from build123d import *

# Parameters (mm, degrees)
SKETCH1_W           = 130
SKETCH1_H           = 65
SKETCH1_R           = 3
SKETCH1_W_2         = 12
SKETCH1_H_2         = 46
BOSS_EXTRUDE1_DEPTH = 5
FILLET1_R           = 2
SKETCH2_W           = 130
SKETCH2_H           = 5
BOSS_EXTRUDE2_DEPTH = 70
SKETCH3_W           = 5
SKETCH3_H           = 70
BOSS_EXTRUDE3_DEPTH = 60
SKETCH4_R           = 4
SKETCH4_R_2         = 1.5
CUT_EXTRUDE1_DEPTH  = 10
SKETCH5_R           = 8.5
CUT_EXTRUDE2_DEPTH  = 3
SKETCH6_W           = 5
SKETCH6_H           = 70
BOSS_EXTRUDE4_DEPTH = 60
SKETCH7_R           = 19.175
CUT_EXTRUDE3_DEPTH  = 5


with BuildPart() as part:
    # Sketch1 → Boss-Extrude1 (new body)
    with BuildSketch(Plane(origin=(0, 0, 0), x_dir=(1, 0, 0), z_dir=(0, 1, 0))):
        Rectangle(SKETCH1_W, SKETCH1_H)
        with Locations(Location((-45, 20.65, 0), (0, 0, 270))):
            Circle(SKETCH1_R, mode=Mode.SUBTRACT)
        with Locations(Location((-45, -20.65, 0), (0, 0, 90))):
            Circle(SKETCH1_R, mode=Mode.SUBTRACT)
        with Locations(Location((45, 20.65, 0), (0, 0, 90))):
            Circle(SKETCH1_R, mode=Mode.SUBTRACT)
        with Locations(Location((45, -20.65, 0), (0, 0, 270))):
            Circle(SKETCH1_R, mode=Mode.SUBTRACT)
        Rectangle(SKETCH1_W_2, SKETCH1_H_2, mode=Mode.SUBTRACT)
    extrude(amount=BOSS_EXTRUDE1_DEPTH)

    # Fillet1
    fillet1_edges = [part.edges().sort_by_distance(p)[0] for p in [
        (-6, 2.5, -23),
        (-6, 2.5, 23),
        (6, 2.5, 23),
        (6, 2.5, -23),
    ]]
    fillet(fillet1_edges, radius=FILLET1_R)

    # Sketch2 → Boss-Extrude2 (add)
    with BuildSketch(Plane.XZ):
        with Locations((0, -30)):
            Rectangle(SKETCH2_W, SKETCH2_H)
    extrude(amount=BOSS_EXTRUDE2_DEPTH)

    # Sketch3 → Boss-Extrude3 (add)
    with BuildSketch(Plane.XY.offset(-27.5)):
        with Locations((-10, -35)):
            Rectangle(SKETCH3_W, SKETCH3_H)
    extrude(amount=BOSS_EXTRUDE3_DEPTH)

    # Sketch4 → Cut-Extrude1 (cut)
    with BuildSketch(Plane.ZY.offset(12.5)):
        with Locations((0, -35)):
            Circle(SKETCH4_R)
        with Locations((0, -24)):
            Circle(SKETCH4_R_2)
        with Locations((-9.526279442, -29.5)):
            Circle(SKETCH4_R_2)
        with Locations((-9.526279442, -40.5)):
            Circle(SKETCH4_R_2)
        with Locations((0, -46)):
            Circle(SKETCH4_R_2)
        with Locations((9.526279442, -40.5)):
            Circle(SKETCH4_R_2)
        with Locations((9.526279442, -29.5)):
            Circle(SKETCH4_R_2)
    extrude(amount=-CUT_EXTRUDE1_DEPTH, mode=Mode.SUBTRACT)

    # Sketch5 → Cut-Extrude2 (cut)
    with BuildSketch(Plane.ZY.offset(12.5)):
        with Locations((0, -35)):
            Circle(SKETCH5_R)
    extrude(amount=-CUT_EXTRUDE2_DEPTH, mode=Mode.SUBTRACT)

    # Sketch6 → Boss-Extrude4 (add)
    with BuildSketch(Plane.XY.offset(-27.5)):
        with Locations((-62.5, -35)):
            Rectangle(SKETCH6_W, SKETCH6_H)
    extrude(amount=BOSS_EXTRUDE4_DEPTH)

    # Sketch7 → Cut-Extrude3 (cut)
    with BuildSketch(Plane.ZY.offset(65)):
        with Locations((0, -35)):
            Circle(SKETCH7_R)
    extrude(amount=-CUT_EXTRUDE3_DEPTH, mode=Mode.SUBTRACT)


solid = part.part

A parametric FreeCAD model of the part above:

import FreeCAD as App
import Part
import Sketcher
from FreeCAD import Vector
Q = App.Units.Quantity


def edges_at(feature, points):
    """Names of the edges that pass closest to the given points."""
    edges = feature.Shape.Edges
    near = lambda p: min(range(len(edges)), key=lambda i: edges[i].distToShape(Part.Vertex(*p))[0])
    return sorted({f"Edge{near(p) + 1}" for p in points})

doc = App.newDocument("Part")
params = doc.addObject("Spreadsheet::Sheet", "Params")
for row, (alias, value) in enumerate([
    ("sketch1_diameter", "6 mm"),
    ("sketch1_width", "130 mm"),
    ("sketch1_width2", "12 mm"),
    ("sketch1_height", "65 mm"),
    ("sketch1_height2", "46 mm"),
    ("pad1_length", "5 mm"),
    ("fillet_radius", "2 mm"),
    ("sketch2_width", "130 mm"),
    ("sketch2_height", "5 mm"),
    ("pad2_length", "70 mm"),
    ("sketch3_width", "5 mm"),
    ("sketch3_height", "70 mm"),
    ("pad3_length", "60 mm"),
    ("sketch4_diameter", "8 mm"),
    ("sketch4_diameter2", "3 mm"),
    ("pocket1_length", "10 mm"),
    ("sketch5_diameter", "17 mm"),
    ("pocket2_length", "3 mm"),
    ("sketch6_width", "5 mm"),
    ("sketch6_height", "70 mm"),
    ("pad4_length", "60 mm"),
    ("sketch7_diameter", "38.35 mm"),
    ("pocket3_length", "5 mm"),
], start=1):
    params.set(f"A{row}", alias)
    params.set(f"B{row}", "=" + value)
    params.setAlias(f"B{row}", alias)

body = doc.addObject("PartDesign::Body", "Body")

# Sketch on XZ plane
sketch1 = doc.addObject("Sketcher::SketchObject", "Sketch")
body.addObject(sketch1)
sketch1.AttachmentSupport = (doc.XZ_Plane, [""])
sketch1.MapMode = "FlatFace"
sketch1.addGeometry(Part.LineSegment(Vector(-65, -32.5, 0), Vector(-65, 32.5, 0)), False)
sketch1.addGeometry(Part.LineSegment(Vector(-65, 32.5, 0), Vector(65, 32.5, 0)), False)
sketch1.addGeometry(Part.LineSegment(Vector(65, 32.5, 0), Vector(65, -32.5, 0)), False)
sketch1.addGeometry(Part.LineSegment(Vector(65, -32.5, 0), Vector(-65, -32.5, 0)), False)
sketch1.addGeometry(Part.Circle(Vector(-45, 20.65, 0), Vector(0, 0, 1), 3), False)
sketch1.addGeometry(Part.Circle(Vector(45, 20.65, 0), Vector(0, 0, 1), 3), False)
sketch1.addGeometry(Part.LineSegment(Vector(6, 23, 0), Vector(-6, 23, 0)), False)
sketch1.addGeometry(Part.LineSegment(Vector(-6, 23, 0), Vector(-6, -23, 0)), False)
sketch1.addGeometry(Part.LineSegment(Vector(-6, -23, 0), Vector(6, -23, 0)), False)
sketch1.addGeometry(Part.LineSegment(Vector(6, -23, 0), Vector(6, 23, 0)), False)
sketch1.addGeometry(Part.Circle(Vector(-45, -20.65, 0), Vector(0, 0, 1), 3), False)
sketch1.addGeometry(Part.Circle(Vector(45, -20.65, 0), Vector(0, 0, 1), 3), False)
sketch1.addConstraint(Sketcher.Constraint("Coincident", 0, 2, 1, 1))
sketch1.addConstraint(Sketcher.Constraint("Coincident", 1, 2, 2, 1))
sketch1.addConstraint(Sketcher.Constraint("Coincident", 2, 2, 3, 1))
sketch1.addConstraint(Sketcher.Constraint("Coincident", 3, 2, 0, 1))
sketch1.addConstraint(Sketcher.Constraint("Coincident", 6, 2, 7, 1))
sketch1.addConstraint(Sketcher.Constraint("Coincident", 7, 2, 8, 1))
sketch1.addConstraint(Sketcher.Constraint("Coincident", 8, 2, 9, 1))
sketch1.addConstraint(Sketcher.Constraint("Coincident", 9, 2, 6, 1))
sketch1.addConstraint(Sketcher.Constraint("Vertical", 0))
sketch1.addConstraint(Sketcher.Constraint("Horizontal", 1))
sketch1.addConstraint(Sketcher.Constraint("Vertical", 2))
sketch1.addConstraint(Sketcher.Constraint("Horizontal", 3))
sketch1.addConstraint(Sketcher.Constraint("Horizontal", 6))
sketch1.addConstraint(Sketcher.Constraint("Vertical", 7))
sketch1.addConstraint(Sketcher.Constraint("Horizontal", 8))
sketch1.addConstraint(Sketcher.Constraint("Vertical", 9))
sketch1.addConstraint(Sketcher.Constraint("Equal", 4, 5))
sketch1.addConstraint(Sketcher.Constraint("Equal", 5, 10))
sketch1.addConstraint(Sketcher.Constraint("Equal", 10, 11))
sketch1.addConstraint(Sketcher.Constraint("Symmetric", 5, 3, 10, 3, -1, 1))
sketch1.addConstraint(Sketcher.Constraint("Symmetric", 4, 3, 11, 3, -1, 1))
sketch1.addConstraint(Sketcher.Constraint("Symmetric", 0, 2, 2, 2, -1, 1))
sketch1.addConstraint(Sketcher.Constraint("Symmetric", 6, 2, 8, 2, -1, 1))
sketch1.addConstraint(Sketcher.Constraint("Symmetric", 4, 3, 5, 3, -2))
sketch1.addConstraint(Sketcher.Constraint("Diameter", 4, Q("6 mm")))
sketch1.addConstraint(Sketcher.Constraint("DistanceX", 1, 1, 1, 2, Q("130 mm")))
sketch1.addConstraint(Sketcher.Constraint("DistanceX", 6, 2, 6, 1, Q("12 mm")))
sketch1.addConstraint(Sketcher.Constraint("DistanceY", 0, 1, 0, 2, Q("65 mm")))
sketch1.addConstraint(Sketcher.Constraint("DistanceY", 7, 2, 7, 1, Q("46 mm")))
sketch1.addConstraint(Sketcher.Constraint("DistanceX", 4, 3, -1, 1, Q("45 mm")))
sketch1.addConstraint(Sketcher.Constraint("DistanceY", 10, 3, 4, 3, Q("41.3 mm")))
sketch1.setExpression("Constraints[24]", "Params.sketch1_diameter")
sketch1.setExpression("Constraints[25]", "Params.sketch1_width")
sketch1.setExpression("Constraints[26]", "Params.sketch1_width2")
sketch1.setExpression("Constraints[27]", "Params.sketch1_height")
sketch1.setExpression("Constraints[28]", "Params.sketch1_height2")
pad1 = doc.addObject("PartDesign::Pad", "Pad")
body.addObject(pad1)
pad1.Profile = sketch1
pad1.setExpression("Length", "Params.pad1_length")
pad1.Reversed = True
doc.recompute()

fillet = doc.addObject("PartDesign::Fillet", "Fillet")
body.addObject(fillet)
fillet.Base = (pad1, edges_at(pad1, [
    (-6, 2.5, -23),
    (-6, 2.5, 23),
    (6, 2.5, 23),
    (6, 2.5, -23),
]))
fillet.setExpression("Radius", "Params.fillet_radius")

# Sketch on XZ plane
sketch2 = doc.addObject("Sketcher::SketchObject", "Sketch001")
body.addObject(sketch2)
sketch2.AttachmentSupport = (doc.XZ_Plane, [""])
sketch2.MapMode = "FlatFace"
sketch2.addGeometry(Part.LineSegment(Vector(-65, -27.5, 0), Vector(-65, -32.5, 0)), False)
sketch2.addGeometry(Part.LineSegment(Vector(-65, -32.5, 0), Vector(65, -32.5, 0)), False)
sketch2.addGeometry(Part.LineSegment(Vector(65, -32.5, 0), Vector(65, -27.5, 0)), False)
sketch2.addGeometry(Part.LineSegment(Vector(65, -27.5, 0), Vector(-65, -27.5, 0)), False)
sketch2.addConstraint(Sketcher.Constraint("Coincident", 0, 2, 1, 1))
sketch2.addConstraint(Sketcher.Constraint("Coincident", 1, 2, 2, 1))
sketch2.addConstraint(Sketcher.Constraint("Coincident", 2, 2, 3, 1))
sketch2.addConstraint(Sketcher.Constraint("Coincident", 3, 2, 0, 1))
sketch2.addConstraint(Sketcher.Constraint("Vertical", 0))
sketch2.addConstraint(Sketcher.Constraint("Horizontal", 1))
sketch2.addConstraint(Sketcher.Constraint("Vertical", 2))
sketch2.addConstraint(Sketcher.Constraint("Horizontal", 3))
sketch2.addConstraint(Sketcher.Constraint("DistanceX", 1, 1, 1, 2, Q("130 mm")))
sketch2.addConstraint(Sketcher.Constraint("DistanceY", 0, 2, 0, 1, Q("5 mm")))
sketch2.addConstraint(Sketcher.Constraint("DistanceX", 0, 2, -1, 1, Q("65 mm")))
sketch2.addConstraint(Sketcher.Constraint("DistanceY", 0, 2, -1, 1, Q("32.5 mm")))
sketch2.setExpression("Constraints[8]", "Params.sketch2_width")
sketch2.setExpression("Constraints[9]", "Params.sketch2_height")
pad2 = doc.addObject("PartDesign::Pad", "Pad001")
body.addObject(pad2)
pad2.Profile = sketch2
pad2.setExpression("Length", "Params.pad2_length")

# Sketch on XY plane
sketch3 = doc.addObject("Sketcher::SketchObject", "Sketch002")
body.addObject(sketch3)
sketch3.AttachmentSupport = (doc.XY_Plane, [""])
sketch3.MapMode = "FlatFace"
sketch3.AttachmentOffset = App.Placement(Vector(0, 0, -27.5), App.Rotation())
sketch3.addGeometry(Part.LineSegment(Vector(-12.5, 0, 0), Vector(-12.5, -70, 0)), False)
sketch3.addGeometry(Part.LineSegment(Vector(-12.5, -70, 0), Vector(-7.5, -70, 0)), False)
sketch3.addGeometry(Part.LineSegment(Vector(-7.5, -70, 0), Vector(-7.5, 0, 0)), False)
sketch3.addGeometry(Part.LineSegment(Vector(-7.5, 0, 0), Vector(-12.5, 0, 0)), False)
sketch3.addConstraint(Sketcher.Constraint("Coincident", 0, 2, 1, 1))
sketch3.addConstraint(Sketcher.Constraint("Coincident", 1, 2, 2, 1))
sketch3.addConstraint(Sketcher.Constraint("Coincident", 2, 2, 3, 1))
sketch3.addConstraint(Sketcher.Constraint("Coincident", 3, 2, 0, 1))
sketch3.addConstraint(Sketcher.Constraint("Vertical", 0))
sketch3.addConstraint(Sketcher.Constraint("Horizontal", 1))
sketch3.addConstraint(Sketcher.Constraint("Vertical", 2))
sketch3.addConstraint(Sketcher.Constraint("Horizontal", 3))
sketch3.addConstraint(Sketcher.Constraint("PointOnObject", 2, 2, -1))
sketch3.addConstraint(Sketcher.Constraint("DistanceX", 1, 1, 1, 2, Q("5 mm")))
sketch3.addConstraint(Sketcher.Constraint("DistanceY", 0, 2, 0, 1, Q("70 mm")))
sketch3.addConstraint(Sketcher.Constraint("DistanceX", 0, 2, -1, 1, Q("12.5 mm")))
sketch3.setExpression("Constraints[9]", "Params.sketch3_width")
sketch3.setExpression("Constraints[10]", "Params.sketch3_height")
pad3 = doc.addObject("PartDesign::Pad", "Pad002")
body.addObject(pad3)
pad3.Profile = sketch3
pad3.setExpression("Length", "Params.pad3_length")

# Sketch on YZ plane
sketch4 = doc.addObject("Sketcher::SketchObject", "Sketch003")
body.addObject(sketch4)
sketch4.AttachmentSupport = (doc.YZ_Plane, [""])
sketch4.MapMode = "FlatFace"
sketch4.AttachmentOffset = App.Placement(Vector(0, 0, -12.5), App.Rotation())
sketch4.addGeometry(Part.Circle(Vector(-35, 0, 0), Vector(0, 0, 1), 4), False)
sketch4.addGeometry(Part.Circle(Vector(-24, 0, 0), Vector(0, 0, 1), 1.5), False)
sketch4.addGeometry(Part.Circle(Vector(-29.5, -9.526279, 0), Vector(0, 0, 1), 1.5), False)
sketch4.addGeometry(Part.Circle(Vector(-40.5, -9.526279, 0), Vector(0, 0, 1), 1.5), False)
sketch4.addGeometry(Part.Circle(Vector(-46, 0, 0), Vector(0, 0, 1), 1.5), False)
sketch4.addGeometry(Part.Circle(Vector(-40.5, 9.526279, 0), Vector(0, 0, 1), 1.5), False)
sketch4.addGeometry(Part.Circle(Vector(-29.5, 9.526279, 0), Vector(0, 0, 1), 1.5), False)
sketch4.addConstraint(Sketcher.Constraint("Equal", 1, 2))
sketch4.addConstraint(Sketcher.Constraint("Equal", 2, 3))
sketch4.addConstraint(Sketcher.Constraint("Equal", 3, 4))
sketch4.addConstraint(Sketcher.Constraint("Equal", 4, 5))
sketch4.addConstraint(Sketcher.Constraint("Equal", 5, 6))
sketch4.addConstraint(Sketcher.Constraint("Symmetric", 3, 3, 5, 3, -1))
sketch4.addConstraint(Sketcher.Constraint("Symmetric", 2, 3, 6, 3, -1))
sketch4.addConstraint(Sketcher.Constraint("PointOnObject", 0, 3, -1))
sketch4.addConstraint(Sketcher.Constraint("PointOnObject", 1, 3, -1))
sketch4.addConstraint(Sketcher.Constraint("PointOnObject", 4, 3, -1))
sketch4.addConstraint(Sketcher.Constraint("Horizontal", 2, 3, 3, 3))
sketch4.addConstraint(Sketcher.Constraint("Diameter", 0, Q("8 mm")))
sketch4.addConstraint(Sketcher.Constraint("Diameter", 1, Q("3 mm")))
sketch4.addConstraint(Sketcher.Constraint("DistanceX", 0, 3, -1, 1, Q("35 mm")))
sketch4.addConstraint(Sketcher.Constraint("DistanceX", 1, 3, -1, 1, Q("24 mm")))
sketch4.addConstraint(Sketcher.Constraint("DistanceX", 4, 3, -1, 1, Q("46 mm")))
sketch4.addConstraint(Sketcher.Constraint("DistanceX", 3, 3, 2, 3, Q("11 mm")))
sketch4.addConstraint(Sketcher.Constraint("DistanceX", 2, 3, -1, 1, Q("29.5 mm")))
sketch4.addConstraint(Sketcher.Constraint("DistanceY", 2, 3, -1, 1, Q("9.526279 mm")))
sketch4.setExpression("Constraints[11]", "Params.sketch4_diameter")
sketch4.setExpression("Constraints[12]", "Params.sketch4_diameter2")
pocket1 = doc.addObject("PartDesign::Pocket", "Pocket")
body.addObject(pocket1)
pocket1.Profile = sketch4
pocket1.setExpression("Length", "Params.pocket1_length")
pocket1.Reversed = True

# Sketch on YZ plane
sketch5 = doc.addObject("Sketcher::SketchObject", "Sketch004")
body.addObject(sketch5)
sketch5.AttachmentSupport = (doc.YZ_Plane, [""])
sketch5.MapMode = "FlatFace"
sketch5.AttachmentOffset = App.Placement(Vector(0, 0, -12.5), App.Rotation())
sketch5.addGeometry(Part.Circle(Vector(-35, 0, 0), Vector(0, 0, 1), 8.5), False)
sketch5.addConstraint(Sketcher.Constraint("PointOnObject", 0, 3, -1))
sketch5.addConstraint(Sketcher.Constraint("Diameter", 0, Q("17 mm")))
sketch5.addConstraint(Sketcher.Constraint("DistanceX", 0, 3, -1, 1, Q("35 mm")))
sketch5.setExpression("Constraints[1]", "Params.sketch5_diameter")
pocket2 = doc.addObject("PartDesign::Pocket", "Pocket001")
body.addObject(pocket2)
pocket2.Profile = sketch5
pocket2.setExpression("Length", "Params.pocket2_length")
pocket2.Reversed = True

# Sketch on XY plane
sketch6 = doc.addObject("Sketcher::SketchObject", "Sketch005")
body.addObject(sketch6)
sketch6.AttachmentSupport = (doc.XY_Plane, [""])
sketch6.MapMode = "FlatFace"
sketch6.AttachmentOffset = App.Placement(Vector(0, 0, -27.5), App.Rotation())
sketch6.addGeometry(Part.LineSegment(Vector(-65, 0, 0), Vector(-65, -70, 0)), False)
sketch6.addGeometry(Part.LineSegment(Vector(-65, -70, 0), Vector(-60, -70, 0)), False)
sketch6.addGeometry(Part.LineSegment(Vector(-60, -70, 0), Vector(-60, 0, 0)), False)
sketch6.addGeometry(Part.LineSegment(Vector(-60, 0, 0), Vector(-65, 0, 0)), False)
sketch6.addConstraint(Sketcher.Constraint("Coincident", 0, 2, 1, 1))
sketch6.addConstraint(Sketcher.Constraint("Coincident", 1, 2, 2, 1))
sketch6.addConstraint(Sketcher.Constraint("Coincident", 2, 2, 3, 1))
sketch6.addConstraint(Sketcher.Constraint("Coincident", 3, 2, 0, 1))
sketch6.addConstraint(Sketcher.Constraint("Vertical", 0))
sketch6.addConstraint(Sketcher.Constraint("Horizontal", 1))
sketch6.addConstraint(Sketcher.Constraint("Vertical", 2))
sketch6.addConstraint(Sketcher.Constraint("Horizontal", 3))
sketch6.addConstraint(Sketcher.Constraint("PointOnObject", 2, 2, -1))
sketch6.addConstraint(Sketcher.Constraint("DistanceX", 1, 1, 1, 2, Q("5 mm")))
sketch6.addConstraint(Sketcher.Constraint("DistanceY", 0, 2, 0, 1, Q("70 mm")))
sketch6.addConstraint(Sketcher.Constraint("DistanceX", 0, 2, -1, 1, Q("65 mm")))
sketch6.setExpression("Constraints[9]", "Params.sketch6_width")
sketch6.setExpression("Constraints[10]", "Params.sketch6_height")
pad4 = doc.addObject("PartDesign::Pad", "Pad003")
body.addObject(pad4)
pad4.Profile = sketch6
pad4.setExpression("Length", "Params.pad4_length")

# Sketch on YZ plane
sketch7 = doc.addObject("Sketcher::SketchObject", "Sketch006")
body.addObject(sketch7)
sketch7.AttachmentSupport = (doc.YZ_Plane, [""])
sketch7.MapMode = "FlatFace"
sketch7.AttachmentOffset = App.Placement(Vector(0, 0, -65), App.Rotation())
sketch7.addGeometry(Part.Circle(Vector(-35, 0, 0), Vector(0, 0, 1), 19.175), False)
sketch7.addConstraint(Sketcher.Constraint("PointOnObject", 0, 3, -1))
sketch7.addConstraint(Sketcher.Constraint("Diameter", 0, Q("38.35 mm")))
sketch7.addConstraint(Sketcher.Constraint("DistanceX", 0, 3, -1, 1, Q("35 mm")))
sketch7.setExpression("Constraints[1]", "Params.sketch7_diameter")
pocket3 = doc.addObject("PartDesign::Pocket", "Pocket002")
body.addObject(pocket3)
pocket3.Profile = sketch7
pocket3.setExpression("Length", "Params.pocket3_length")
pocket3.Reversed = True

doc.recompute()
